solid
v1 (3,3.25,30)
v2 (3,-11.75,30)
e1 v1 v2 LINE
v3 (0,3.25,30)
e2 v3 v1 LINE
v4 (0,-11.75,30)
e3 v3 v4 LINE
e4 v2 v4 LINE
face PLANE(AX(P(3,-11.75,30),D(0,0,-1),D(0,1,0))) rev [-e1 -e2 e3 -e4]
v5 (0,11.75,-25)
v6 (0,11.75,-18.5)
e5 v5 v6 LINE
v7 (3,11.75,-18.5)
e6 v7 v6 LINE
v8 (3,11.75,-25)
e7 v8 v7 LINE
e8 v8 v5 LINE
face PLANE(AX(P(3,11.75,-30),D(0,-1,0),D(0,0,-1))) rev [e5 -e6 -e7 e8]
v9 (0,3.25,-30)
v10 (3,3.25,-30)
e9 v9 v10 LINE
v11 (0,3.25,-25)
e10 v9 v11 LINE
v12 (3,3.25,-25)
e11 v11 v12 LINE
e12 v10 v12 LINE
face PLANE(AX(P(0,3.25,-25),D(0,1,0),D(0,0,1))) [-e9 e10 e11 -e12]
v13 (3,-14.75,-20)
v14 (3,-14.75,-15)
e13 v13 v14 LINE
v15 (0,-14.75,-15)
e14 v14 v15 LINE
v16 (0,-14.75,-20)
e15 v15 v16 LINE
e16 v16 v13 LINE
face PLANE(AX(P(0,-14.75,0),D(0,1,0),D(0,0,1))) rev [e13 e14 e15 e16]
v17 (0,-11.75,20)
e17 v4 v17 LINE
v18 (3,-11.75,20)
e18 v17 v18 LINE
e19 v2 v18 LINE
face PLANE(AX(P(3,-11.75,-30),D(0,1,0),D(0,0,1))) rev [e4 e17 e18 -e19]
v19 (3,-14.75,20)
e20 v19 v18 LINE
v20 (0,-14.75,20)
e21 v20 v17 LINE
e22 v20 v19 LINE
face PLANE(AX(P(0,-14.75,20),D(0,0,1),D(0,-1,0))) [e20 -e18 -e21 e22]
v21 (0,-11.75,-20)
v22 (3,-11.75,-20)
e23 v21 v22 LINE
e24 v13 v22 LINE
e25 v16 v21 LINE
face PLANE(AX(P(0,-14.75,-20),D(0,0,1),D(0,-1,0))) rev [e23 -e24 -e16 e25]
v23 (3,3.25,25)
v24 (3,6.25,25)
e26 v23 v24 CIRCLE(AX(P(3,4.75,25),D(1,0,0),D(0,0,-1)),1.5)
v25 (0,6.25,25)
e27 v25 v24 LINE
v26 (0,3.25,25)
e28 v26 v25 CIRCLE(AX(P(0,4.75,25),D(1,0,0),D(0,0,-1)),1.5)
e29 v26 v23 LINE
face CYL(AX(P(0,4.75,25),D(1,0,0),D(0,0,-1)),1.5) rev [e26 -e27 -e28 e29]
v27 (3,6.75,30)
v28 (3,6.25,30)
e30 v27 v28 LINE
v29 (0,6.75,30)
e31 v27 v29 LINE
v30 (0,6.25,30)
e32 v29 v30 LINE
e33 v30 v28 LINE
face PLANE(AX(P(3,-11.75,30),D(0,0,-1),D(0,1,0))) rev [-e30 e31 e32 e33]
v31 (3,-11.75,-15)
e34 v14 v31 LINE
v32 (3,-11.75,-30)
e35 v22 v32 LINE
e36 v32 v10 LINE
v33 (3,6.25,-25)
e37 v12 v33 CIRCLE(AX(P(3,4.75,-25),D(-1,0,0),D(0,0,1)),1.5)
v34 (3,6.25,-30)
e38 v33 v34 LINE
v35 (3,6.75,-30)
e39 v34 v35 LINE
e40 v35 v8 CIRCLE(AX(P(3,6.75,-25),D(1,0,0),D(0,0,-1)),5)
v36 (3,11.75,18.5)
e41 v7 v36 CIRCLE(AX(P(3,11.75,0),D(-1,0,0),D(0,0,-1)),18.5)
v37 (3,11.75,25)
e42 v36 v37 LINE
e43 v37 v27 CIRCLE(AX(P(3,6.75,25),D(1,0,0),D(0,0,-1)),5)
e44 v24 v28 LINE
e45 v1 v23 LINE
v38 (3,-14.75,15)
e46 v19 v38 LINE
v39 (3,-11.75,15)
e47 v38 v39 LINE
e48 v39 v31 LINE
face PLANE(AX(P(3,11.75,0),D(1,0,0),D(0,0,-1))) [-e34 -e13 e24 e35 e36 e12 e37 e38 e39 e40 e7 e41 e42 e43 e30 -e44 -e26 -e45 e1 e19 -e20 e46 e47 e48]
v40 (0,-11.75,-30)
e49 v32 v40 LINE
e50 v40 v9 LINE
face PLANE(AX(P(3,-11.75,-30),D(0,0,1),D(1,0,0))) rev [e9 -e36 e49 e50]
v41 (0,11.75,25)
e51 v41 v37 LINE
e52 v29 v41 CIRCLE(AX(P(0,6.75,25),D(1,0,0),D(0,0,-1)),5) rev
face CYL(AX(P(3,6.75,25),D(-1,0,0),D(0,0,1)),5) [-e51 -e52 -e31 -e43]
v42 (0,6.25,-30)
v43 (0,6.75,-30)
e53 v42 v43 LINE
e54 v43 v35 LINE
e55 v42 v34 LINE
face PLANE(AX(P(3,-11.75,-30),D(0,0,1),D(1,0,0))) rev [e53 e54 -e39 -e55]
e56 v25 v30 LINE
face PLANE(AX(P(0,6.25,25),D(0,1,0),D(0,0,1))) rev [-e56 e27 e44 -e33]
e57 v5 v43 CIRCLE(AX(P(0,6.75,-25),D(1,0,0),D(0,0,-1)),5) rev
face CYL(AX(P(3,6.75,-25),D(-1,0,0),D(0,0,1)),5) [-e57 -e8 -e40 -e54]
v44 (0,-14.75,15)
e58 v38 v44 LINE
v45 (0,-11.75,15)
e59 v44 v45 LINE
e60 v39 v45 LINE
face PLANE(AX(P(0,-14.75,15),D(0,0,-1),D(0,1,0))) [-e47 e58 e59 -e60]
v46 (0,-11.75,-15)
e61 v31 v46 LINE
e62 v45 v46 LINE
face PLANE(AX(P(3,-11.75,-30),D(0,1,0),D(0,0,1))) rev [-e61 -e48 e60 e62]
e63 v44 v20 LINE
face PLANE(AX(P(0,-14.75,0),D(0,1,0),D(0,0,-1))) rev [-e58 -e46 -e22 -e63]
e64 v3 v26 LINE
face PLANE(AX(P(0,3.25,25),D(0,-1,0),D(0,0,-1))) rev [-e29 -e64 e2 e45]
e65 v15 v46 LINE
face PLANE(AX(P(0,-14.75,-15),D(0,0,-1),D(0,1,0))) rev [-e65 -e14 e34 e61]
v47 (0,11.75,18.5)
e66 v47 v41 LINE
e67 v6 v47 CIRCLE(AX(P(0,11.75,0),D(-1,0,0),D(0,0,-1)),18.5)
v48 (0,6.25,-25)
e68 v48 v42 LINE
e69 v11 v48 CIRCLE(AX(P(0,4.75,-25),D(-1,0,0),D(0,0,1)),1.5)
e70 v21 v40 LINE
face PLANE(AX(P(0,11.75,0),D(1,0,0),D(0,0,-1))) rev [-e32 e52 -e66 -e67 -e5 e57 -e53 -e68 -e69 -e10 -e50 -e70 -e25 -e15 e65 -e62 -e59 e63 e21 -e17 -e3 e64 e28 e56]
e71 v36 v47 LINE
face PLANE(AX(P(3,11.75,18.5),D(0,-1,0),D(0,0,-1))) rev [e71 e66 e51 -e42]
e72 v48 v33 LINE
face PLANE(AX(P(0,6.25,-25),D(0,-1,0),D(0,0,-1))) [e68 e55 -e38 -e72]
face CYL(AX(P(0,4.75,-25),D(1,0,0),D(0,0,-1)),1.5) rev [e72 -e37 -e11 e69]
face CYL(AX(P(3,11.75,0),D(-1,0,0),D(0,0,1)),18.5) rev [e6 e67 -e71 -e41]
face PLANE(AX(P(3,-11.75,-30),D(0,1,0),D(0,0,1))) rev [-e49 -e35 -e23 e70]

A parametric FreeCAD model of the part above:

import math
import FreeCAD as App
import Part
import Sketcher
from FreeCAD import Vector


def edges_at(feature, points):
    """Names of the edges that pass closest to the given points."""
    edges = feature.Shape.Edges
    near = lambda p: min(range(len(edges)), key=lambda i: edges[i].distToShape(Part.Vertex(*p))[0])
    return sorted({f"Edge{near(p) + 1}" for p in points})


def add_polygon(sketch, points):
    """Adds a closed chain of lines whose ends are joined by coincident constraints."""
    first, n = sketch.GeometryCount, len(points)
    for a, b in zip(points, points[1:] + points[:1]):
        sketch.addGeometry(Part.LineSegment(App.Vector(*a, 0), App.Vector(*b, 0)), False)
    for i in range(n):
        sketch.addConstraint(Sketcher.Constraint("Coincident", first + i, 2, first + (i + 1) % n, 1))

doc = App.newDocument("Part")
body = doc.addObject("PartDesign::Body", "Body")

sketch1 = body.newObject("Sketcher::SketchObject", "Sketch")
sketch1.AttachmentSupport = (doc.getObject("YZ_Plane"), [""])
sketch1.MapMode = "FlatFace"
sketch1.addGeometry(Part.LineSegment(Vector(12, 18, 0), Vector(12, 30, 0)), False)
sketch1.addGeometry(Part.LineSegment(Vector(12, 30, 0), Vector(-12, 30, 0)), False)
sketch1.addGeometry(Part.LineSegment(Vector(-12, 30, 0), Vector(-12, -30, 0)), False)
sketch1.addGeometry(Part.LineSegment(Vector(-12, -30, 0), Vector(12, -30, 0)), False)
sketch1.addGeometry(Part.LineSegment(Vector(12, -30, 0), Vector(12, -18, 0)), False)
sketch1.addGeometry(Part.ArcOfCircle(Part.Circle(Vector(12, 0, 0), Vector(0, 0, 1), 18), math.radians(90), math.radians(270)), False)
sketch1.addConstraint(Sketcher.Constraint("Coincident", 0, 2, 1, 1))
sketch1.addConstraint(Sketcher.Constraint("Coincident", 1, 2, 2, 1))
sketch1.addConstraint(Sketcher.Constraint("Coincident", 2, 2, 3, 1))
sketch1.addConstraint(Sketcher.Constraint("Coincident", 3, 2, 4, 1))
sketch1.addConstraint(Sketcher.Constraint("Coincident", 4, 2, 5, 2))
sketch1.addConstraint(Sketcher.Constraint("Coincident", 5, 1, 0, 1))
sketch1.addConstraint(Sketcher.Constraint("Vertical", 0))
sketch1.addConstraint(Sketcher.Constraint("Horizontal", 1))
sketch1.addConstraint(Sketcher.Constraint("Vertical", 2))
sketch1.addConstraint(Sketcher.Constraint("Horizontal", 3))
sketch1.addConstraint(Sketcher.Constraint("Vertical", 4))
sketch1.addConstraint(Sketcher.Constraint("Symmetric", 0, 2, 2, 2, -1, 1))
sketch1.addConstraint(Sketcher.Constraint("Symmetric", 4, 2, 5, 1, -1))
sketch1.addConstraint(Sketcher.Constraint("Vertical", 5, 3, 0, 2))
sketch1.addConstraint(Sketcher.Constraint("Radius", 5, 18.5))
sketch1.addConstraint(Sketcher.Constraint("DistanceY", 2, 2, 2, 1, 60.0))
sketch1.addConstraint(Sketcher.Constraint("DistanceX", 1, 2, 1, 1, 23.5))
pad1 = body.newObject("PartDesign::Pad", "Pad")
pad1.Profile = sketch1
pad1.Length = 3

sketch2 = body.newObject("Sketcher::SketchObject", "Sketch001")
sketch2.AttachmentSupport = (doc.getObject("YZ_Plane"), [""])
sketch2.MapMode = "FlatFace"
sketch2.AttachmentOffset = App.Placement(Vector(0, 0, 3), App.Rotation())
sketch2.addGeometry(Part.LineSegment(Vector(6.2, 25, 0), Vector(6.2, 30, 0)), False)
sketch2.addGeometry(Part.LineSegment(Vector(6.2, 30, 0), Vector(3.2, 30, 0)), False)
sketch2.addGeometry(Part.LineSegment(Vector(3.2, 30, 0), Vector(3.2, 25, 0)), False)
sketch2.addGeometry(Part.ArcOfCircle(Part.Circle(Vector(4.8, 25, 0), Vector(0, 0, 1), 1.5), math.radians(180), math.radians(360)), False)
sketch2.addConstraint(Sketcher.Constraint("Coincident", 0, 2, 1, 1))
sketch2.addConstraint(Sketcher.Constraint("Coincident", 1, 2, 2, 1))
sketch2.addConstraint(Sketcher.Constraint("Tangent", 2, 2, 3, 1))
sketch2.addConstraint(Sketcher.Constraint("Tangent", 3, 2, 0, 1))
sketch2.addConstraint(Sketcher.Constraint("Vertical", 0))
sketch2.addConstraint(Sketcher.Constraint("Horizontal", 1))
sketch2.addConstraint(Sketcher.Constraint("Vertical", 2))
sketch2.addConstraint(Sketcher.Constraint("Radius", 3, 1.5))
sketch2.addConstraint(Sketcher.Constraint("DistanceY", 0, 1, 0, 2, 5.0))
sketch2.addConstraint(Sketcher.Constraint("DistanceY", -1, 1, 3, 3, 25.0))
sketch2.addConstraint(Sketcher.Constraint("DistanceX", -1, 1, 3, 3, 4.75))
pocket1 = body.newObject("PartDesign::Pocket", "Pocket")
pocket1.Profile = sketch2
pocket1.Type = "ThroughAll"
doc.recompute()

mirrored = body.newObject("PartDesign::Mirrored", "Mirrored")
mirrored.Originals = [pocket1]
mirrored.MirrorPlane = (doc.getObject("XY_Plane"), [""])
body.Tip = mirrored
doc.recompute()

fillet = body.newObject("PartDesign::Fillet", "Fillet")
fillet.Base = (mirrored, edges_at(mirrored, [(1.5, 11.75, 30), (1.5, 11.75, -30)]))
fillet.Radius = 5

sketch3 = body.newObject("Sketcher::SketchObject", "Sketch002")
sketch3.AttachmentSupport = (doc.getObject("XZ_Plane"), [""])
sketch3.MapMode = "FlatFace"
sketch3.AttachmentOffset = App.Placement(Vector(0, 0, 11.75), App.Rotation())
add_polygon(sketch3, [(0, -15), (0, -20), (3, -20), (3, -15)])
sketch3.addConstraint(Sketcher.Constraint("Vertical", 0))
sketch3.addConstraint(Sketcher.Constraint("Horizontal", 1))
sketch3.addConstraint(Sketcher.Constraint("Vertical", 2))
sketch3.addConstraint(Sketcher.Constraint("Horizontal", 3))
sketch3.addConstraint(Sketcher.Constraint("PointOnObject", 0, 2, -2))
sketch3.addConstraint(Sketcher.Constraint("DistanceX", 1, 1, 1, 2, 3.0))
sketch3.addConstraint(Sketcher.Constraint("DistanceY", 0, 2, 0, 1, 5.0))
sketch3.addConstraint(Sketcher.Constraint("DistanceY", 0, 2, -1, 1, 20.0))
pad2 = body.newObject("PartDesign::Pad", "Pad001")
pad2.Profile = sketch3
pad2.Length = 3
doc.recompute()

mirrored2 = body.newObject("PartDesign::Mirrored", "Mirrored001")
mirrored2.Originals = [pad2]
mirrored2.MirrorPlane = (doc.getObject("XY_Plane"), [""])
body.Tip = mirrored2

doc.recompute()
